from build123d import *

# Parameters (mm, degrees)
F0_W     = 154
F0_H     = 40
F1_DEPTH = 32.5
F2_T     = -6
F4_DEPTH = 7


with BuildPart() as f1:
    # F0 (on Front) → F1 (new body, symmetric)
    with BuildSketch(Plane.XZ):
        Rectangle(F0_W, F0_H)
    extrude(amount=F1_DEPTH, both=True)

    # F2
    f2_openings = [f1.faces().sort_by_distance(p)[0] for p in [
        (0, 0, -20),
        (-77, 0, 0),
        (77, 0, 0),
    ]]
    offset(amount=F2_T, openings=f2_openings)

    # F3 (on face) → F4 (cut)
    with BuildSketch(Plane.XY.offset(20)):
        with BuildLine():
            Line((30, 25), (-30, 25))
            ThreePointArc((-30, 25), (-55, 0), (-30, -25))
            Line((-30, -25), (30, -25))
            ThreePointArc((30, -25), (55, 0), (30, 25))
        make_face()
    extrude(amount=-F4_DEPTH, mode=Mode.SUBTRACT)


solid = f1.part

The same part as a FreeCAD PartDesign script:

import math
import FreeCAD as App
import Part
import Sketcher
from FreeCAD import Vector


def faces_at(feature, points):
    """Names of the faces that lie closest to the given points."""
    faces = feature.Shape.Faces
    near = lambda p: min(range(len(faces)), key=lambda i: faces[i].distToShape(Part.Vertex(*p))[0])
    return sorted({f"Face{near(p) + 1}" for p in points})

doc = App.newDocument("Part")
body = doc.addObject("PartDesign::Body", "Body")

# Sketch on XZ plane
sketch1 = body.newObject("Sketcher::SketchObject", "Sketch")
sketch1.AttachmentSupport = (doc.getObject("XZ_Plane"), [""])
sketch1.MapMode = "FlatFace"
sketch1.addGeometry(Part.LineSegment(Vector(-77, 20, 0), Vector(-77, -20, 0)), False)
sketch1.addGeometry(Part.LineSegment(Vector(-77, -20, 0), Vector(77, -20, 0)), False)
sketch1.addGeometry(Part.LineSegment(Vector(77, -20, 0), Vector(77, 20, 0)), False)
sketch1.addGeometry(Part.LineSegment(Vector(77, 20, 0), Vector(-77, 20, 0)), False)
sketch1.addConstraint(Sketcher.Constraint("Coincident", 0, 2, 1, 1))
sketch1.addConstraint(Sketcher.Constraint("Coincident", 1, 2, 2, 1))
sketch1.addConstraint(Sketcher.Constraint("Coincident", 2, 2, 3, 1))
sketch1.addConstraint(Sketcher.Constraint("Coincident", 3, 2, 0, 1))
sketch1.addConstraint(Sketcher.Constraint("Vertical", 0))
sketch1.addConstraint(Sketcher.Constraint("Horizontal", 1))
sketch1.addConstraint(Sketcher.Constraint("Vertical", 2))
sketch1.addConstraint(Sketcher.Constraint("Horizontal", 3))
sketch1.addConstraint(Sketcher.Constraint("Symmetric", 0, 2, 2, 2, -1, 1))
sketch1.addConstraint(Sketcher.Constraint("DistanceX", 1, 1, 1, 2, 154.0))
sketch1.addConstraint(Sketcher.Constraint("DistanceY", 0, 2, 0, 1, 40.0))
pad1 = body.newObject("PartDesign::Pad", "Pad")
pad1.Profile = sketch1
pad1.Length = 65
pad1.Midplane = True
doc.recompute()

thickness = body.newObject("PartDesign::Thickness", "Thickness")
thickness.Base = (pad1, faces_at(pad1, [(0, 0, -20), (-77, 0, 0), (77, 0, 0)]))
thickness.Value = 6
thickness.Reversed = True
thickness.Join = "Arc"

# Sketch on XY plane
sketch2 = body.newObject("Sketcher::SketchObject", "Sketch001")
sketch2.AttachmentSupport = (doc.getObject("XY_Plane"), [""])
sketch2.MapMode = "FlatFace"
sketch2.AttachmentOffset = App.Placement(Vector(0, 0, 20), App.Rotation())
sketch2.addGeometry(Part.LineSegment(Vector(30, 25, 0), Vector(-30, 25, 0)), False)
sketch2.addGeometry(Part.ArcOfCircle(Part.Circle(Vector(-30, 0, 0), Vector(0, 0, 1), 25), math.radians(90), math.radians(270)), False)
sketch2.addGeometry(Part.LineSegment(Vector(-30, -25, 0), Vector(30, -25, 0)), False)
sketch2.addGeometry(Part.ArcOfCircle(Part.Circle(Vector(30, 0, 0), Vector(0, 0, 1), 25), math.radians(-90), math.radians(90)), False)
sketch2.addConstraint(Sketcher.Constraint("Tangent", 0, 2, 1, 1))
sketch2.addConstraint(Sketcher.Constraint("Tangent", 1, 2, 2, 1))
sketch2.addConstraint(Sketcher.Constraint("Tangent", 2, 2, 3, 1))
sketch2.addConstraint(Sketcher.Constraint("Tangent", 3, 2, 0, 1))
sketch2.addConstraint(Sketcher.Constraint("Horizontal", 0))
sketch2.addConstraint(Sketcher.Constraint("Horizontal", 2))
sketch2.addConstraint(Sketcher.Constraint("Symmetric", 1, 3, 3, 3, -1, 1))
sketch2.addConstraint(Sketcher.Constraint("Radius", 1, 25.0))
sketch2.addConstraint(Sketcher.Constraint("DistanceX", 0, 2, 0, 1, 60.0))
pocket1 = body.newObject("PartDesign::Pocket", "Pocket")
pocket1.Profile = sketch2
pocket1.Length = 7

doc.recompute()
